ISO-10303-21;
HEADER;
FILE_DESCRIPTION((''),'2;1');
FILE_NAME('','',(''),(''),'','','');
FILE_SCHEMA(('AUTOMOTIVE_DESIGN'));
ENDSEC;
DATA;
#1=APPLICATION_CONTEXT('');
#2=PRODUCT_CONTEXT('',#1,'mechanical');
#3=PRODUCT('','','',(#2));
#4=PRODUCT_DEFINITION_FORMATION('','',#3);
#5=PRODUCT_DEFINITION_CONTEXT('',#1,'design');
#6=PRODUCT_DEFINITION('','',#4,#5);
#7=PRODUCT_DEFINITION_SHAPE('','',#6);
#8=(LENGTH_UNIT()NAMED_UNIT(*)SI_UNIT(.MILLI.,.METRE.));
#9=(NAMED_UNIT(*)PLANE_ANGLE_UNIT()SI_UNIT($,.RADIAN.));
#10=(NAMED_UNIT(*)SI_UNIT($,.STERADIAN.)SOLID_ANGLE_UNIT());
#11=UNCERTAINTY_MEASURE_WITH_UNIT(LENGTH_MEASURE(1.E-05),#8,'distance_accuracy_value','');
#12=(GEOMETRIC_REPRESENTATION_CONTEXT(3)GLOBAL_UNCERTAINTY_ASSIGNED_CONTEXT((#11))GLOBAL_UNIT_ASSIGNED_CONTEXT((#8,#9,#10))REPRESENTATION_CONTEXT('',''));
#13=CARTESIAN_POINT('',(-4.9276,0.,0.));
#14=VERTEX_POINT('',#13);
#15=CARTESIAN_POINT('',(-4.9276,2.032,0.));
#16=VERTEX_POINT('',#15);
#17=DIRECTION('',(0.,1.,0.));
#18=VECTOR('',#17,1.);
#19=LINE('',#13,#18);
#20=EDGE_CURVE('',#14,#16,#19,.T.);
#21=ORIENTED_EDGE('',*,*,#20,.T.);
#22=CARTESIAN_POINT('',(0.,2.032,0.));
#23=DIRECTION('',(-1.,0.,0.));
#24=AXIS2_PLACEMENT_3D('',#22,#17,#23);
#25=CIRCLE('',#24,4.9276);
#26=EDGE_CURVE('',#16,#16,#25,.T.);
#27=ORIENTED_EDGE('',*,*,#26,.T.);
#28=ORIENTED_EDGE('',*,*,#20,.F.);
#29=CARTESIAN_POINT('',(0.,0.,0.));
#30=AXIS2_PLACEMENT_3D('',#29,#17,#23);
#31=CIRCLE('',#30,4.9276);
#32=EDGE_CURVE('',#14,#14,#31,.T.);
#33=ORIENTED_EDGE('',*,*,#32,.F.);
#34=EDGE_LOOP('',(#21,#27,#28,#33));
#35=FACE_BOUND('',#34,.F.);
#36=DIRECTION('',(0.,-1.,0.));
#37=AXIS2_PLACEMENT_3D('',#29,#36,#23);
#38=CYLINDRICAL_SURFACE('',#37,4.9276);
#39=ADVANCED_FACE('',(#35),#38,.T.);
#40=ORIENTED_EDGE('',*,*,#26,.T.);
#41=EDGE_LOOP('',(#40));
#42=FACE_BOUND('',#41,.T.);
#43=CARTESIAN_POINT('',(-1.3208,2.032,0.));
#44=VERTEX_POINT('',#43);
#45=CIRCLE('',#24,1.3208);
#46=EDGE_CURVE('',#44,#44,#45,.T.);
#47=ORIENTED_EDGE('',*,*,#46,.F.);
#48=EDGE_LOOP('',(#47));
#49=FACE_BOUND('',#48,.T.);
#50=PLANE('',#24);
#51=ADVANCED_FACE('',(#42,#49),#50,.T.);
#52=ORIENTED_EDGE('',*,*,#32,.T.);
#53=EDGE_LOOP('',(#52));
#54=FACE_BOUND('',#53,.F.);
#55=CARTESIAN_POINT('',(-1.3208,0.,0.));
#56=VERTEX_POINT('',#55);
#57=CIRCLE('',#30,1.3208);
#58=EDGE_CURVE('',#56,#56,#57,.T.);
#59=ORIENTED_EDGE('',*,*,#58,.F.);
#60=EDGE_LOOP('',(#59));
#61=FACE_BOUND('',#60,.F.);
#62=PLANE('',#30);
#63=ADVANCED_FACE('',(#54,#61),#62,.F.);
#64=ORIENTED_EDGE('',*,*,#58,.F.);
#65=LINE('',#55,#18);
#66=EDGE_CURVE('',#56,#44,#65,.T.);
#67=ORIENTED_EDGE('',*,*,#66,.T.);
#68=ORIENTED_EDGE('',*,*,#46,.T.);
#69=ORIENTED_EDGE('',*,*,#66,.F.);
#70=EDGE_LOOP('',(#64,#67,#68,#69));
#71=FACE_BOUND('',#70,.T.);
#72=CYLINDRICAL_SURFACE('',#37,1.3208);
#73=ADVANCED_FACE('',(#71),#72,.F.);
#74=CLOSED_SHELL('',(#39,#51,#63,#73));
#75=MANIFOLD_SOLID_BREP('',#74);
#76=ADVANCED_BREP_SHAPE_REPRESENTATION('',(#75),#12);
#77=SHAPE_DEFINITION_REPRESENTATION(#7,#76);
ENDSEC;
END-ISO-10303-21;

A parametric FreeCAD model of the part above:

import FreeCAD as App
import Part
import Sketcher

V = App.Vector
Q = App.Units.Quantity

doc = App.newDocument("Part")
params = doc.addObject("Spreadsheet::Sheet", "Params")
for row, (alias, value) in enumerate([
    ("sketch1_diameter", "0.388 in"),
    ("sketch1_diameter2", "0.104 in"),
    ("pad1_length", "0.08 in"),
], start=1):
    params.set(f"A{row}", alias)
    params.set(f"B{row}", "=" + value)
    params.setAlias(f"B{row}", alias)

body = doc.addObject("PartDesign::Body", "Body")

sketch1 = body.newObject("Sketcher::SketchObject", "Sketch")
sketch1.AttachmentSupport = (doc.getObject("XZ_Plane"), [""])
sketch1.MapMode = "FlatFace"
sketch1.addGeometry(Part.Circle(V(0, 0, 0), V(0, 0, 1), 4.9), False)
sketch1.addGeometry(Part.Circle(V(0, 0, 0), V(0, 0, 1), 1.3), False)
sketch1.addConstraint(Sketcher.Constraint("Coincident", 0, 3, -1, 1))
sketch1.addConstraint(Sketcher.Constraint("Coincident", 1, 3, -1, 1))
sketch1.addConstraint(Sketcher.Constraint("Diameter", 0, Q("0.388 in")))
sketch1.addConstraint(Sketcher.Constraint("Diameter", 1, Q("0.104 in")))
sketch1.setExpression("Constraints[2]", "Params.sketch1_diameter")
sketch1.setExpression("Constraints[3]", "Params.sketch1_diameter2")
pad1 = body.newObject("PartDesign::Pad", "Pad")
pad1.Profile = sketch1
pad1.setExpression("Length", "Params.pad1_length")
pad1.Reversed = True

doc.recompute()
